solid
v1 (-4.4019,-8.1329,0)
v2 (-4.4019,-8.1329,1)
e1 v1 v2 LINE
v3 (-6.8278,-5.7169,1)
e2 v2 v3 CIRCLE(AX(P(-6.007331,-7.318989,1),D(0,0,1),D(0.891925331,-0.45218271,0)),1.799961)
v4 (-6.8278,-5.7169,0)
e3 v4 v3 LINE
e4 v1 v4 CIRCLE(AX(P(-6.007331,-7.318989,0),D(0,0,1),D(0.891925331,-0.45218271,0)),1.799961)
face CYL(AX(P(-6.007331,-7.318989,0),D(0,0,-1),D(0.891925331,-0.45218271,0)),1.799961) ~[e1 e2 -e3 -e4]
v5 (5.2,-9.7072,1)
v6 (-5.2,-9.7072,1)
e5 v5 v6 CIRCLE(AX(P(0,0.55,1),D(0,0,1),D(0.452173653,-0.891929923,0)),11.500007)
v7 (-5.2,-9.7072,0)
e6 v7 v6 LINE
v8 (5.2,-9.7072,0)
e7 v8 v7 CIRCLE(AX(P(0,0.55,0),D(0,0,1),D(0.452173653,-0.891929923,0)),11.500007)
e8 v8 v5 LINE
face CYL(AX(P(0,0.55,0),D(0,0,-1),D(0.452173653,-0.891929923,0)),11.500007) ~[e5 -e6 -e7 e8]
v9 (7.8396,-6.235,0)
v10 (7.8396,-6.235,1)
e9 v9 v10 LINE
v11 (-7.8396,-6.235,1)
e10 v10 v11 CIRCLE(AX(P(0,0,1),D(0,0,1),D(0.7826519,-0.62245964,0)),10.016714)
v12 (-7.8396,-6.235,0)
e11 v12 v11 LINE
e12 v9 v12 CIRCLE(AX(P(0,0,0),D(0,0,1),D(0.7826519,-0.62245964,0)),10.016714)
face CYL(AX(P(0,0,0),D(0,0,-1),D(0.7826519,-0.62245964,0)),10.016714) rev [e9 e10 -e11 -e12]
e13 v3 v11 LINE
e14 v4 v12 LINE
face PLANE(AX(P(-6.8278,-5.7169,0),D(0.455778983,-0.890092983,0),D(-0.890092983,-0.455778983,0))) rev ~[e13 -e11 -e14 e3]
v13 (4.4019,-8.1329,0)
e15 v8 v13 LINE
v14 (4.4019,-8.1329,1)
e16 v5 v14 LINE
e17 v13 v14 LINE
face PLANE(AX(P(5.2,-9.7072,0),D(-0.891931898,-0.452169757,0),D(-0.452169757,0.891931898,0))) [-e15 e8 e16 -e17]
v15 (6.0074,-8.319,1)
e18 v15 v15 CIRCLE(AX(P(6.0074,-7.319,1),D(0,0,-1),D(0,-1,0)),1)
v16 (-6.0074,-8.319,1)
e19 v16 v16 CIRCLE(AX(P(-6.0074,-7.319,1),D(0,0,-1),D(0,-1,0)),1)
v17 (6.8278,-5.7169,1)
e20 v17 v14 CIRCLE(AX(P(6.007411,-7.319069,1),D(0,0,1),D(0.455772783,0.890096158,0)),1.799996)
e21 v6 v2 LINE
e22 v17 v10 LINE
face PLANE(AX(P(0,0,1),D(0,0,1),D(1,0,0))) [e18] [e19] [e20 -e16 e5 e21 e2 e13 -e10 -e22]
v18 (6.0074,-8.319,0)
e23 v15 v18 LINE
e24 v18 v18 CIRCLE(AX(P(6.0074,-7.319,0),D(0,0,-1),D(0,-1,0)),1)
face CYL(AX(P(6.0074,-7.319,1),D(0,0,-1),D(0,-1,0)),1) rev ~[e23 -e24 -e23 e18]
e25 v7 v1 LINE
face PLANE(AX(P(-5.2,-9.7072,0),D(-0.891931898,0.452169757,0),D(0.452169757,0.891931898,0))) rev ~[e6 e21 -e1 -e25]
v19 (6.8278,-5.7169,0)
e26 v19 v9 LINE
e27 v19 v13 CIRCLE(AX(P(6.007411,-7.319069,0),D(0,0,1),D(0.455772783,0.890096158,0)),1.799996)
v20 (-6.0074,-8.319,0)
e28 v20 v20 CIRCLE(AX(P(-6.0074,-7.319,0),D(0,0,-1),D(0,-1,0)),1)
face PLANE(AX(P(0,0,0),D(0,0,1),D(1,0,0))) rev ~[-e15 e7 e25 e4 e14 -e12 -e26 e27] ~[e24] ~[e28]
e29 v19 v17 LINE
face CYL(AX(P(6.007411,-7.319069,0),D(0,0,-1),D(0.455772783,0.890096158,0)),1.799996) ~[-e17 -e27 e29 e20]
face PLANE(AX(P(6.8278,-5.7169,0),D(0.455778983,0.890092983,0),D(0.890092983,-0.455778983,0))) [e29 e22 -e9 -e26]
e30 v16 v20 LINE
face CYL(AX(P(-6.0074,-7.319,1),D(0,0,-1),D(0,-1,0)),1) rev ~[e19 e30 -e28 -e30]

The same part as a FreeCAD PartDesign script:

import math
import FreeCAD as App
import Part
import Sketcher
from FreeCAD import Vector

doc = App.newDocument("Part")
body = doc.addObject("PartDesign::Body", "Body")

# Sketch on XY plane
sketch1 = doc.addObject("Sketcher::SketchObject", "Sketch")
body.addObject(sketch1)
sketch1.AttachmentSupport = (doc.XY_Plane, [""])
sketch1.MapMode = "FlatFace"
sketch1.addGeometry([
    Part.LineSegment(Vector(4.4, -8.1, 0), Vector(5.2, -9.7, 0)),  # 0
    Part.ArcOfCircle(Part.Circle(Vector(0, 0.6, 0), Vector(0, 0, 1), 11.5), math.radians(-63), math.radians(243)),  # 1
    Part.LineSegment(Vector(-5.2, -9.7, 0), Vector(-4.4, -8.1, 0)),  # 2
    Part.ArcOfCircle(Part.Circle(Vector(-6, -7.3, 0), Vector(0, 0, 1), 1.8), math.radians(-27), math.radians(117)),  # 3
    Part.LineSegment(Vector(-6.8, -5.7, 0), Vector(-7.8, -6.2, 0)),  # 4
    Part.ArcOfCircle(Part.Circle(Vector(0, 0, 0), Vector(0, 0, 1), 10), math.radians(-38), math.radians(218)),  # 5
    Part.LineSegment(Vector(7.8, -6.2, 0), Vector(6.8, -5.7, 0)),  # 6
    Part.ArcOfCircle(Part.Circle(Vector(6, -7.3, 0), Vector(0, 0, 1), 1.8), math.radians(63), math.radians(207)),  # 7
], False)
sketch1.addConstraint([
    Sketcher.Constraint("Coincident", 0, 2, 1, 1),
    Sketcher.Constraint("Coincident", 1, 2, 2, 1),
    Sketcher.Constraint("Tangent", 2, 2, 3, 1),
    Sketcher.Constraint("Tangent", 3, 2, 4, 1),
    Sketcher.Constraint("Coincident", 4, 2, 5, 2),
    Sketcher.Constraint("Coincident", 5, 1, 6, 1),
    Sketcher.Constraint("Tangent", 6, 2, 7, 1),
    Sketcher.Constraint("Tangent", 7, 2, 0, 1),
    Sketcher.Constraint("Coincident", 5, 3, -1, 1),
    Sketcher.Constraint("Equal", 3, 7),
    Sketcher.Constraint("Symmetric", 3, 3, 7, 3, -2),
    Sketcher.Constraint("Symmetric", 0, 2, 1, 2, -2),
    Sketcher.Constraint("Horizontal", 4, 2, 5, 1),
    Sketcher.Constraint("Radius", 1, 11.5),
    Sketcher.Constraint("Radius", 3, 1.8),
    Sketcher.Constraint("DistanceX", -1, 1, 0, 2, 5.2),
    Sketcher.Constraint("Radius", 5, 10.0167),
    Sketcher.Constraint("DistanceY", -1, 1, 1, 3, 0.55),
    Sketcher.Constraint("Distance", 0, 1.765),
    Sketcher.Constraint("DistanceY", 3, 3, -1, 1, 7.319),
    Sketcher.Constraint("DistanceY", 4, 2, -1, 1, 6.235),
])
pad1 = doc.addObject("PartDesign::Pad", "Pad")
body.addObject(pad1)
pad1.Profile = sketch1
pad1.Length = 1

# Sketch on XY plane
sketch2 = doc.addObject("Sketcher::SketchObject", "Sketch001")
body.addObject(sketch2)
sketch2.AttachmentSupport = (doc.XY_Plane, [""])
sketch2.MapMode = "FlatFace"
sketch2.AttachmentOffset = App.Placement(Vector(0, 0, 1), App.Rotation())
sketch2.addGeometry(Part.Circle(Vector(-6, -7.3, 0), Vector(0, 0, 1), 1), False)
sketch2.addConstraint([
    Sketcher.Constraint("Diameter", 0, 2.0),
    Sketcher.Constraint("DistanceY", 0, 3, -1, 1, 7.319),
    Sketcher.Constraint("DistanceX", 0, 3, -1, 1, 6.0074),
])
doc.recompute()
hole = doc.addObject("PartDesign::Hole", "Hole")
body.addObject(hole)
hole.Profile = sketch2
hole.ThreadType = "None"
hole.Diameter = 2
hole.DepthType = "ThroughAll"

# Sketch on XY plane
sketch3 = doc.addObject("Sketcher::SketchObject", "Sketch002")
body.addObject(sketch3)
sketch3.AttachmentSupport = (doc.XY_Plane, [""])
sketch3.MapMode = "FlatFace"
sketch3.AttachmentOffset = App.Placement(Vector(0, 0, 1), App.Rotation())
sketch3.addGeometry(Part.Circle(Vector(6, -7.3, 0), Vector(0, 0, 1), 1), False)
sketch3.addConstraint([
    Sketcher.Constraint("Diameter", 0, 2.0),
    Sketcher.Constraint("DistanceY", 0, 3, -1, 1, 7.319),
    Sketcher.Constraint("DistanceX", -1, 1, 0, 3, 6.0074),
])
doc.recompute()
hole2 = doc.addObject("PartDesign::Hole", "Hole001")
body.addObject(hole2)
hole2.Profile = sketch3
hole2.ThreadType = "None"
hole2.Diameter = 2
hole2.DepthType = "ThroughAll"

doc.recompute()
